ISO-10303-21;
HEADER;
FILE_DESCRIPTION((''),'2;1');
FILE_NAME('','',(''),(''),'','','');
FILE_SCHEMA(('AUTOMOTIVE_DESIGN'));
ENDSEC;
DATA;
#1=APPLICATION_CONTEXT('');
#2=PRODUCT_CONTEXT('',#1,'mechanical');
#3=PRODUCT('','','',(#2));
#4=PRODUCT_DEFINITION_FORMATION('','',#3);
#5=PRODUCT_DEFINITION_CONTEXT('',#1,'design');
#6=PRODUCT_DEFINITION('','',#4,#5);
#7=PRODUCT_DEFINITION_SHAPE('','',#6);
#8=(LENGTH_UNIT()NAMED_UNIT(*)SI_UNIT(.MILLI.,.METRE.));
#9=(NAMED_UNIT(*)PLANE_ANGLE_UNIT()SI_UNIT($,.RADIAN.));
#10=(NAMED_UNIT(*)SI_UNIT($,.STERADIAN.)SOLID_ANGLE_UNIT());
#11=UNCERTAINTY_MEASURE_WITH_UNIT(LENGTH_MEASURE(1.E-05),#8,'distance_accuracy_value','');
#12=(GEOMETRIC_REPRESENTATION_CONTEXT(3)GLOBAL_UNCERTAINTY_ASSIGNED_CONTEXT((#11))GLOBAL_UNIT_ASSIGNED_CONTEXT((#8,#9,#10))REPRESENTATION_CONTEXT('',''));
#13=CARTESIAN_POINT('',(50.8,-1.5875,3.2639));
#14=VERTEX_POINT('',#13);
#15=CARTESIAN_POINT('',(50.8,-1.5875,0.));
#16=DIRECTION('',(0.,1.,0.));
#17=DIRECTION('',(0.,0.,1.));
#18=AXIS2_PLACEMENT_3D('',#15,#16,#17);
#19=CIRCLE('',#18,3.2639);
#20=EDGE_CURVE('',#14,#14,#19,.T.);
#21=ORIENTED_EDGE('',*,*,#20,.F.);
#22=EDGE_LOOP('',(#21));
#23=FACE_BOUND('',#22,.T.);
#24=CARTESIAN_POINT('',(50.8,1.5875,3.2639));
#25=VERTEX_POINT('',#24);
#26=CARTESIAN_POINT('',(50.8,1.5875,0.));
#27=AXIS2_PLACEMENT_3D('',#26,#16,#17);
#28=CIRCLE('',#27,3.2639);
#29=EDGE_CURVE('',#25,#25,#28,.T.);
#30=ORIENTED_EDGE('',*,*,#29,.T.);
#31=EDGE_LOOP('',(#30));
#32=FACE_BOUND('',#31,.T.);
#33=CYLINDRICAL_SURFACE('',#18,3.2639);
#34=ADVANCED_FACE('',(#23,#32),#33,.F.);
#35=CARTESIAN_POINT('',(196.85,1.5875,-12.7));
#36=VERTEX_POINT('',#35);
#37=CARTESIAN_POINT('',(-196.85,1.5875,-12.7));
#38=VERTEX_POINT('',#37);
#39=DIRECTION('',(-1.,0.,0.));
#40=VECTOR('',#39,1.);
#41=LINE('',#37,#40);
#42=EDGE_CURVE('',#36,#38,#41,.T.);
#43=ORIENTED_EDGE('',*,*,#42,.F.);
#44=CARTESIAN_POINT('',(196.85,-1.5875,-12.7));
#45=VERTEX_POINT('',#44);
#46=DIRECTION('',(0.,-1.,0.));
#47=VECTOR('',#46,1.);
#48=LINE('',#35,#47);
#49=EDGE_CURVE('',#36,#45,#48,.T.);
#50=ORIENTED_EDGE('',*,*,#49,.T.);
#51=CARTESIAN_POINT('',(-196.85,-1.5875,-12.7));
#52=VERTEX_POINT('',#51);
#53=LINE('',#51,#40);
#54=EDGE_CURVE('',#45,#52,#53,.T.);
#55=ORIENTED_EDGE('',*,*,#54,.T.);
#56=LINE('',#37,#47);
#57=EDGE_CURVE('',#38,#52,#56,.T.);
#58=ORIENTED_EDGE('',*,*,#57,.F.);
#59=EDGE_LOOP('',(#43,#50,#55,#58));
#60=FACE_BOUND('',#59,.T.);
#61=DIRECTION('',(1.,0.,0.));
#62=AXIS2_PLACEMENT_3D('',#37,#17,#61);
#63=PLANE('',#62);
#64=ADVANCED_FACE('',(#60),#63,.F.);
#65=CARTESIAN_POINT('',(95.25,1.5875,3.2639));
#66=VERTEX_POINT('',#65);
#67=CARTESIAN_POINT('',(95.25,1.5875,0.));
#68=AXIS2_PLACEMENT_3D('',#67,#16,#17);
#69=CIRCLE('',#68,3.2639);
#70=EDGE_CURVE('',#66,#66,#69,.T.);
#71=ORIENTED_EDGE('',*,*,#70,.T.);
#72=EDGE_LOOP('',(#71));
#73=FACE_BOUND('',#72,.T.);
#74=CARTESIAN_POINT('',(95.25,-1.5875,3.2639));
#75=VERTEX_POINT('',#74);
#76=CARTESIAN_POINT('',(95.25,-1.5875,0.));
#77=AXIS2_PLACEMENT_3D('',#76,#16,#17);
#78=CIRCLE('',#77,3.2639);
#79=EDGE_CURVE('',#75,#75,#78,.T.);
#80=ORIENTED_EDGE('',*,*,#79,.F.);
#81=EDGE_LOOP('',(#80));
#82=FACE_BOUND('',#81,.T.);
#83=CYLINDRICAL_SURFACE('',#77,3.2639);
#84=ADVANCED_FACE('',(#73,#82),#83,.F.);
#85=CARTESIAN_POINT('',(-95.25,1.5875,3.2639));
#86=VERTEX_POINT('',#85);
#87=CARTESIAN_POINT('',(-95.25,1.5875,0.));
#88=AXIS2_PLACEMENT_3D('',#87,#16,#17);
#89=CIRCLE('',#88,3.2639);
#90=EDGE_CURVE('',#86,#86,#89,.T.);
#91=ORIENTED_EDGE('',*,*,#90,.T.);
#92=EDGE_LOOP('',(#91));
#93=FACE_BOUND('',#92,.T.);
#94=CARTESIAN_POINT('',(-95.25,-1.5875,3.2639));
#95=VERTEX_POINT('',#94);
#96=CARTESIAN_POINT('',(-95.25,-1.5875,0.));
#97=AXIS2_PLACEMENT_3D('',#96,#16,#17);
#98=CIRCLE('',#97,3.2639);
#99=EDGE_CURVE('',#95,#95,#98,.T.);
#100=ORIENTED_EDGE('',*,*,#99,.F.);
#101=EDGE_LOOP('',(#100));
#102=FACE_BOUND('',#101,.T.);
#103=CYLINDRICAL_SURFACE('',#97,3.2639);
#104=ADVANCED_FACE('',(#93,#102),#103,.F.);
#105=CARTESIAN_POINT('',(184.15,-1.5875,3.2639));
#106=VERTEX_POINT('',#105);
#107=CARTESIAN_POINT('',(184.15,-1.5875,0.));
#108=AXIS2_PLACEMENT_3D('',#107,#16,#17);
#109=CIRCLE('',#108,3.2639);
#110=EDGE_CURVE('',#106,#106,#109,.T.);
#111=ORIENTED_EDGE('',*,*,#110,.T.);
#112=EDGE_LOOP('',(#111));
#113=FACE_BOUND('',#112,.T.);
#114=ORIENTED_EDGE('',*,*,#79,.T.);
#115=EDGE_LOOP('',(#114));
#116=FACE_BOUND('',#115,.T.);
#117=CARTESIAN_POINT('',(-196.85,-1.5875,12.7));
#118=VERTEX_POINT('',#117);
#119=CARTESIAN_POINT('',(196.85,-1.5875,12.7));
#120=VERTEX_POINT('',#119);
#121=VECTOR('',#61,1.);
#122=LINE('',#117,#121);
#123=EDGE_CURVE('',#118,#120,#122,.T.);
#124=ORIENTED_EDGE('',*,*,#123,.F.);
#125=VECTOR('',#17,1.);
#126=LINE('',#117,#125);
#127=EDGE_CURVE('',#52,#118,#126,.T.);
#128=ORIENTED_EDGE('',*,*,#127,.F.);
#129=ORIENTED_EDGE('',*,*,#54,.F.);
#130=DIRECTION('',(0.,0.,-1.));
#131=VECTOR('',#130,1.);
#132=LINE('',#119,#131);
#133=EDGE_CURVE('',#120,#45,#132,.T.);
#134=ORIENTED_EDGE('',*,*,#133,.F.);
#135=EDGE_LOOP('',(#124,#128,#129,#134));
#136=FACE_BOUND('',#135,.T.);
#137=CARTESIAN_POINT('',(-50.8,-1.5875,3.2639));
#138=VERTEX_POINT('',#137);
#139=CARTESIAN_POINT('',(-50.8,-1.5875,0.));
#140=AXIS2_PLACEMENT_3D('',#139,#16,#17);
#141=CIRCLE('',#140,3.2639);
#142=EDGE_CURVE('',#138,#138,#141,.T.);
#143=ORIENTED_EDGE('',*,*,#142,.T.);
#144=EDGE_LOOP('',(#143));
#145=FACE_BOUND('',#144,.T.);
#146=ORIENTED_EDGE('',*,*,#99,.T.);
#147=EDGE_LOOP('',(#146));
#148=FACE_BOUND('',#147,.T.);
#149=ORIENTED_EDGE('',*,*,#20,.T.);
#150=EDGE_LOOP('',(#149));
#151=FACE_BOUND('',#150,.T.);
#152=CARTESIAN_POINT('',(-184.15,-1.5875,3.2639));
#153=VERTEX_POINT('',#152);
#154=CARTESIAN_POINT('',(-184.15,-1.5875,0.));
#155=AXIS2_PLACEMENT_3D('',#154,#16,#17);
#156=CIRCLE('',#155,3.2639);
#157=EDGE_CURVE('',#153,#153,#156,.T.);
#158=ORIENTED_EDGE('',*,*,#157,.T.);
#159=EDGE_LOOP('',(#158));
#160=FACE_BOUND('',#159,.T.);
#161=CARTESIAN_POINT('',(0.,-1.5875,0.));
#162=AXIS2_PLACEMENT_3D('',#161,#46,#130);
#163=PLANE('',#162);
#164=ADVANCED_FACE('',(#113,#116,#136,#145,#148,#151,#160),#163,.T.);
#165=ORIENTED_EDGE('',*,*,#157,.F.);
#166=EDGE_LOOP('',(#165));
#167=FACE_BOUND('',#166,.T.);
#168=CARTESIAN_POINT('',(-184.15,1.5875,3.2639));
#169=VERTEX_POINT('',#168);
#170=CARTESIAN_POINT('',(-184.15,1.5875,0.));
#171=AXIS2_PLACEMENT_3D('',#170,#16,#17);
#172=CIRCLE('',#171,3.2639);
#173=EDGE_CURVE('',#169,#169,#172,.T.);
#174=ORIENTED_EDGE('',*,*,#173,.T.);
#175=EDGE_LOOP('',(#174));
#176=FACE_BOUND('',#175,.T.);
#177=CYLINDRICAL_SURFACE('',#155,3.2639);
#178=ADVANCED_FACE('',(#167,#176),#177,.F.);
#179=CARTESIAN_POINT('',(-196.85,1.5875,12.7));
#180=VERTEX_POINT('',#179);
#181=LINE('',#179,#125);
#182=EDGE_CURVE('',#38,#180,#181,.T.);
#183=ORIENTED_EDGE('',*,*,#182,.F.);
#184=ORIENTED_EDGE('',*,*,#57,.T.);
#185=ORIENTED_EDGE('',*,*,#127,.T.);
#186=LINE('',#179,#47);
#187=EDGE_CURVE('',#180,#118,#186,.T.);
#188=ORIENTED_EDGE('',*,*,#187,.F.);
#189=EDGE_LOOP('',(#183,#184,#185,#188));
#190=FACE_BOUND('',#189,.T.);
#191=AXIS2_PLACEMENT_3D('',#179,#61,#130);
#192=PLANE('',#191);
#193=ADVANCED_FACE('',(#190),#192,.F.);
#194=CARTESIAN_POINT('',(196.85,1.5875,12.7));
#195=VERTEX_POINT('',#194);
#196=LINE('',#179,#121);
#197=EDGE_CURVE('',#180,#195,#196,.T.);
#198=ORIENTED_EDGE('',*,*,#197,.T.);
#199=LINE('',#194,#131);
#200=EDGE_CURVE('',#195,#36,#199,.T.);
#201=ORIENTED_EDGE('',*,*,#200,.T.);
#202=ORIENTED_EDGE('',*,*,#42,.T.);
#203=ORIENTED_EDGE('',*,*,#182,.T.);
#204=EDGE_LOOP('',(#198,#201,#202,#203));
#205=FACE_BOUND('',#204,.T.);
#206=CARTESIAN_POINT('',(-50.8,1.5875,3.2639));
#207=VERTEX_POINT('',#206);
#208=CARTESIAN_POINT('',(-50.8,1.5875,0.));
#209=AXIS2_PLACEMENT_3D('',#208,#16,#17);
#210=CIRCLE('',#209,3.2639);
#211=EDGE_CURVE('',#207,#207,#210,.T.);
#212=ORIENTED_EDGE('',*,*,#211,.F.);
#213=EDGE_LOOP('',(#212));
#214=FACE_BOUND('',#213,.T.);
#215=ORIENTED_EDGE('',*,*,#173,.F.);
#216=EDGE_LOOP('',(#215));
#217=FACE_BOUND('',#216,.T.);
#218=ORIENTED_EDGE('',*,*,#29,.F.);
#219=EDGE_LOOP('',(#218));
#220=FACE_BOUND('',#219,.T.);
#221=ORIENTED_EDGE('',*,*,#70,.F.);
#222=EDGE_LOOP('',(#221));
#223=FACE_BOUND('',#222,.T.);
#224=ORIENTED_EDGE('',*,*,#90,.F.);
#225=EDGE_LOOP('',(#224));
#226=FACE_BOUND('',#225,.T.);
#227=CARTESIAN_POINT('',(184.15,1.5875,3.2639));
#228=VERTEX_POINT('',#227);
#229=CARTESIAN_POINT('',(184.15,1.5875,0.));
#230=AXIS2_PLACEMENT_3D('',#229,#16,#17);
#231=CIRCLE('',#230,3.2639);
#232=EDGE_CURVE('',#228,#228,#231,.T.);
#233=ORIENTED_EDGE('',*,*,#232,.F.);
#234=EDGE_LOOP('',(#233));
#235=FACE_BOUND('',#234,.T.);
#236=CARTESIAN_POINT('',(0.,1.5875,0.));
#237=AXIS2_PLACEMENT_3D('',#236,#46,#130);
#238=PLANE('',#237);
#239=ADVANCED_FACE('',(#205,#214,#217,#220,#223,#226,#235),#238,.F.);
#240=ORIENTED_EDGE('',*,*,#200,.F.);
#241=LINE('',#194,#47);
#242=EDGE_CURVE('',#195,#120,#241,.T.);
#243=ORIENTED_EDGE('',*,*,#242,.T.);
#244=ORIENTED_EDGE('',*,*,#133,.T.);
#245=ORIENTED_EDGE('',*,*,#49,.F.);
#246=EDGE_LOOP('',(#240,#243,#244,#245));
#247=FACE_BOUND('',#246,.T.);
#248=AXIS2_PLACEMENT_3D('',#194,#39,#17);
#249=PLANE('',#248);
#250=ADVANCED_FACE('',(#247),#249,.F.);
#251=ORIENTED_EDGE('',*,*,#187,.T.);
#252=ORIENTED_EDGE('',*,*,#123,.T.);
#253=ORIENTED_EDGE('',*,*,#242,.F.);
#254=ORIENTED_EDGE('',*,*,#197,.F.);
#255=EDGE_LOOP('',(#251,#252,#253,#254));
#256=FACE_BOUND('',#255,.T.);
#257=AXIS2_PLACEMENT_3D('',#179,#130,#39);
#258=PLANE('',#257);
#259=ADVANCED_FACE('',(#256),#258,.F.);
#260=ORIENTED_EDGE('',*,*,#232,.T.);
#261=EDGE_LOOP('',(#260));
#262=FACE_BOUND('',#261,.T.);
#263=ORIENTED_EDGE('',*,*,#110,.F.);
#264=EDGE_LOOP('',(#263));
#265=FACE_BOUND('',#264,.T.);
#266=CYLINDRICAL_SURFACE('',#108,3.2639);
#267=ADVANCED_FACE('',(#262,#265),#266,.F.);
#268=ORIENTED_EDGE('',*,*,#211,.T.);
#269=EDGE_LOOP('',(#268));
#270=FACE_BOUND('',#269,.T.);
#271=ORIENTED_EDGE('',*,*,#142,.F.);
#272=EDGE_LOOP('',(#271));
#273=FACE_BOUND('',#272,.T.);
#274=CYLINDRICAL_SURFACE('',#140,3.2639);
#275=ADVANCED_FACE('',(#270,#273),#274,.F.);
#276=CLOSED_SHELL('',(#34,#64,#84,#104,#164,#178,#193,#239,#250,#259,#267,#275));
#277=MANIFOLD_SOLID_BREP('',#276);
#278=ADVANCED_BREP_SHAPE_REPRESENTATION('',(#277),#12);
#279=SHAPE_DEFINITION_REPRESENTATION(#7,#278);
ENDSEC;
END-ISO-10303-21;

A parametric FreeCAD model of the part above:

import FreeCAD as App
import Part
import Sketcher
Q = App.Units.Quantity

doc = App.newDocument("Part")
body = doc.addObject("PartDesign::Body", "Body")

sketch1 = body.newObject("Sketcher::SketchObject", "Sketch")
sketch1.AttachmentSupport = (doc.getObject("XZ_Plane"), [""])
sketch1.MapMode = "FlatFace"
sketch1.addGeometry([
    Part.LineSegment(App.Vector(-197, -13, 0), App.Vector(-197, 13, 0)),
    Part.LineSegment(App.Vector(-197, 13, 0), App.Vector(197, 13, 0)),
    Part.LineSegment(App.Vector(197, 13, 0), App.Vector(197, -13, 0)),
    Part.LineSegment(App.Vector(197, -13, 0), App.Vector(-197, -13, 0)),
], False)
sketch1.addConstraint([
    Sketcher.Constraint("Coincident", 0, 2, 1, 1),
    Sketcher.Constraint("Coincident", 1, 2, 2, 1),
    Sketcher.Constraint("Coincident", 2, 2, 3, 1),
    Sketcher.Constraint("Coincident", 3, 2, 0, 1),
    Sketcher.Constraint("Vertical", 0),
    Sketcher.Constraint("Horizontal", 1),
    Sketcher.Constraint("Vertical", 2),
    Sketcher.Constraint("Horizontal", 3),
    Sketcher.Constraint("Symmetric", 0, 2, 2, 2, -1, 1),
    Sketcher.Constraint("DistanceY", 0, 1, 0, 2, Q("1 in")),
    Sketcher.Constraint("DistanceX", 1, 1, 1, 2, Q("15.5 in")),
])
pad1 = body.newObject("PartDesign::Pad", "Pad")
pad1.Profile = sketch1
pad1.Length = Q("0.125 in")
pad1.Midplane = True

sketch2 = body.newObject("Sketcher::SketchObject", "Sketch001")
sketch2.AttachmentSupport = (doc.getObject("XZ_Plane"), [""])
sketch2.MapMode = "FlatFace"
sketch2.AttachmentOffset = App.Placement(App.Vector(0, 0, -0.0625 * 25.4), App.Rotation())
sketch2.addGeometry([
    Part.Circle(App.Vector(-184.2, 0, 0), App.Vector(0, 0, 1), 3.3),
    Part.Circle(App.Vector(184.2, 0, 0), App.Vector(0, 0, 1), 3.3),
    Part.Circle(App.Vector(-95.2, 0, 0), App.Vector(0, 0, 1), 3.3),
    Part.Circle(App.Vector(95.2, 0, 0), App.Vector(0, 0, 1), 3.3),
    Part.Circle(App.Vector(-50.8, 0, 0), App.Vector(0, 0, 1), 3.3),
    Part.Circle(App.Vector(50.8, 0, 0), App.Vector(0, 0, 1), 3.3),
], False)
sketch2.addConstraint([
    Sketcher.Constraint("Equal", 0, 1),
    Sketcher.Constraint("Equal", 1, 2),
    Sketcher.Constraint("Equal", 2, 3),
    Sketcher.Constraint("Equal", 3, 4),
    Sketcher.Constraint("Equal", 4, 5),
    Sketcher.Constraint("Symmetric", 0, 3, 1, 3, -1, 1),
    Sketcher.Constraint("Symmetric", 2, 3, 3, 3, -1, 1),
    Sketcher.Constraint("Symmetric", 4, 3, 5, 3, -1, 1),
    Sketcher.Constraint("PointOnObject", 0, 3, -1),
    Sketcher.Constraint("PointOnObject", 2, 3, -1),
    Sketcher.Constraint("PointOnObject", 4, 3, -1),
    Sketcher.Constraint("Diameter", 0, Q("0.257 in")),
    Sketcher.Constraint("DistanceX", 4, 3, -1, 1, Q("2 in")),
    Sketcher.Constraint("DistanceX", 2, 3, 1, 3, Q("11 in")),
    Sketcher.Constraint("DistanceX", 0, 3, 1, 3, Q("14.5 in")),
])
pocket1 = body.newObject("PartDesign::Pocket", "Pocket")
pocket1.Profile = sketch2
pocket1.Type = "ThroughAll"
pocket1.Midplane = True

doc.recompute()
